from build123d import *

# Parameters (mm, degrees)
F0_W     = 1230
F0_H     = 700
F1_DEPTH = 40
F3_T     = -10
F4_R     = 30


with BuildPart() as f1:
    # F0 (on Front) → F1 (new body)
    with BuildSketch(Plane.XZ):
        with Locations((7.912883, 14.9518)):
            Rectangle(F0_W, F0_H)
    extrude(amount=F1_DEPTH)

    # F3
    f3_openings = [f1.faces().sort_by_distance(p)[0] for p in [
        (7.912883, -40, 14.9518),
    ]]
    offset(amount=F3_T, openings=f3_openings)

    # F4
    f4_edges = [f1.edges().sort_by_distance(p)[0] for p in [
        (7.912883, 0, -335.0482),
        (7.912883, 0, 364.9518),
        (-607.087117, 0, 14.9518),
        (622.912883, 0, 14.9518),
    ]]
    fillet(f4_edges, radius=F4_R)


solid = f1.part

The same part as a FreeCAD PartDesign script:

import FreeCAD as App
import Part
import Sketcher
from FreeCAD import Vector
Q = App.Units.Quantity


def edges_at(feature, points):
    """Names of the edges that pass closest to the given points."""
    edges = feature.Shape.Edges
    near = lambda p: min(range(len(edges)), key=lambda i: edges[i].distToShape(Part.Vertex(*p))[0])
    return sorted({f"Edge{near(p) + 1}" for p in points})


def faces_at(feature, points):
    """Names of the faces that lie closest to the given points."""
    faces = feature.Shape.Faces
    near = lambda p: min(range(len(faces)), key=lambda i: faces[i].distToShape(Part.Vertex(*p))[0])
    return sorted({f"Face{near(p) + 1}" for p in points})

doc = App.newDocument("Part")
body = doc.addObject("PartDesign::Body", "Body")

# Sketch on XZ plane
sketch1 = body.newObject("Sketcher::SketchObject", "Sketch")
sketch1.AttachmentSupport = (doc.getObject("XZ_Plane"), [""])
sketch1.MapMode = "FlatFace"
sketch1.addGeometry(Part.LineSegment(Vector(-607, 365, 0), Vector(-607, -335, 0)), False)
sketch1.addGeometry(Part.LineSegment(Vector(-607, -335, 0), Vector(623, -335, 0)), False)
sketch1.addGeometry(Part.LineSegment(Vector(623, -335, 0), Vector(623, 365, 0)), False)
sketch1.addGeometry(Part.LineSegment(Vector(623, 365, 0), Vector(-607, 365, 0)), False)
sketch1.addConstraint(Sketcher.Constraint("Coincident", 0, 2, 1, 1))
sketch1.addConstraint(Sketcher.Constraint("Coincident", 1, 2, 2, 1))
sketch1.addConstraint(Sketcher.Constraint("Coincident", 2, 2, 3, 1))
sketch1.addConstraint(Sketcher.Constraint("Coincident", 3, 2, 0, 1))
sketch1.addConstraint(Sketcher.Constraint("Vertical", 0))
sketch1.addConstraint(Sketcher.Constraint("Horizontal", 1))
sketch1.addConstraint(Sketcher.Constraint("Vertical", 2))
sketch1.addConstraint(Sketcher.Constraint("Horizontal", 3))
sketch1.addConstraint(Sketcher.Constraint("DistanceX", 1, 1, 1, 2, Q("1230 mm")))
sketch1.addConstraint(Sketcher.Constraint("DistanceY", 0, 2, 0, 1, Q("700 mm")))
sketch1.addConstraint(Sketcher.Constraint("DistanceY", 0, 2, -1, 1, Q("335.0482 mm")))
sketch1.addConstraint(Sketcher.Constraint("DistanceX", 0, 2, -1, 1, Q("607.087117 mm")))
pad1 = body.newObject("PartDesign::Pad", "Pad")
pad1.Profile = sketch1
pad1.Length = 40
doc.recompute()

thickness = body.newObject("PartDesign::Thickness", "Thickness")
thickness.Base = (pad1, faces_at(pad1, [(7.913, -40, 14.952)]))
thickness.Value = 10
thickness.Reversed = True
thickness.Join = "Arc"
doc.recompute()

fillet = body.newObject("PartDesign::Fillet", "Fillet")
fillet.Base = (thickness, edges_at(thickness, [
    (7.913, 0, -335.048),
    (7.913, 0, 364.952),
    (-607.087, 0, 14.952),
    (622.913, 0, 14.952),
]))
fillet.Radius = 30

doc.recompute()
